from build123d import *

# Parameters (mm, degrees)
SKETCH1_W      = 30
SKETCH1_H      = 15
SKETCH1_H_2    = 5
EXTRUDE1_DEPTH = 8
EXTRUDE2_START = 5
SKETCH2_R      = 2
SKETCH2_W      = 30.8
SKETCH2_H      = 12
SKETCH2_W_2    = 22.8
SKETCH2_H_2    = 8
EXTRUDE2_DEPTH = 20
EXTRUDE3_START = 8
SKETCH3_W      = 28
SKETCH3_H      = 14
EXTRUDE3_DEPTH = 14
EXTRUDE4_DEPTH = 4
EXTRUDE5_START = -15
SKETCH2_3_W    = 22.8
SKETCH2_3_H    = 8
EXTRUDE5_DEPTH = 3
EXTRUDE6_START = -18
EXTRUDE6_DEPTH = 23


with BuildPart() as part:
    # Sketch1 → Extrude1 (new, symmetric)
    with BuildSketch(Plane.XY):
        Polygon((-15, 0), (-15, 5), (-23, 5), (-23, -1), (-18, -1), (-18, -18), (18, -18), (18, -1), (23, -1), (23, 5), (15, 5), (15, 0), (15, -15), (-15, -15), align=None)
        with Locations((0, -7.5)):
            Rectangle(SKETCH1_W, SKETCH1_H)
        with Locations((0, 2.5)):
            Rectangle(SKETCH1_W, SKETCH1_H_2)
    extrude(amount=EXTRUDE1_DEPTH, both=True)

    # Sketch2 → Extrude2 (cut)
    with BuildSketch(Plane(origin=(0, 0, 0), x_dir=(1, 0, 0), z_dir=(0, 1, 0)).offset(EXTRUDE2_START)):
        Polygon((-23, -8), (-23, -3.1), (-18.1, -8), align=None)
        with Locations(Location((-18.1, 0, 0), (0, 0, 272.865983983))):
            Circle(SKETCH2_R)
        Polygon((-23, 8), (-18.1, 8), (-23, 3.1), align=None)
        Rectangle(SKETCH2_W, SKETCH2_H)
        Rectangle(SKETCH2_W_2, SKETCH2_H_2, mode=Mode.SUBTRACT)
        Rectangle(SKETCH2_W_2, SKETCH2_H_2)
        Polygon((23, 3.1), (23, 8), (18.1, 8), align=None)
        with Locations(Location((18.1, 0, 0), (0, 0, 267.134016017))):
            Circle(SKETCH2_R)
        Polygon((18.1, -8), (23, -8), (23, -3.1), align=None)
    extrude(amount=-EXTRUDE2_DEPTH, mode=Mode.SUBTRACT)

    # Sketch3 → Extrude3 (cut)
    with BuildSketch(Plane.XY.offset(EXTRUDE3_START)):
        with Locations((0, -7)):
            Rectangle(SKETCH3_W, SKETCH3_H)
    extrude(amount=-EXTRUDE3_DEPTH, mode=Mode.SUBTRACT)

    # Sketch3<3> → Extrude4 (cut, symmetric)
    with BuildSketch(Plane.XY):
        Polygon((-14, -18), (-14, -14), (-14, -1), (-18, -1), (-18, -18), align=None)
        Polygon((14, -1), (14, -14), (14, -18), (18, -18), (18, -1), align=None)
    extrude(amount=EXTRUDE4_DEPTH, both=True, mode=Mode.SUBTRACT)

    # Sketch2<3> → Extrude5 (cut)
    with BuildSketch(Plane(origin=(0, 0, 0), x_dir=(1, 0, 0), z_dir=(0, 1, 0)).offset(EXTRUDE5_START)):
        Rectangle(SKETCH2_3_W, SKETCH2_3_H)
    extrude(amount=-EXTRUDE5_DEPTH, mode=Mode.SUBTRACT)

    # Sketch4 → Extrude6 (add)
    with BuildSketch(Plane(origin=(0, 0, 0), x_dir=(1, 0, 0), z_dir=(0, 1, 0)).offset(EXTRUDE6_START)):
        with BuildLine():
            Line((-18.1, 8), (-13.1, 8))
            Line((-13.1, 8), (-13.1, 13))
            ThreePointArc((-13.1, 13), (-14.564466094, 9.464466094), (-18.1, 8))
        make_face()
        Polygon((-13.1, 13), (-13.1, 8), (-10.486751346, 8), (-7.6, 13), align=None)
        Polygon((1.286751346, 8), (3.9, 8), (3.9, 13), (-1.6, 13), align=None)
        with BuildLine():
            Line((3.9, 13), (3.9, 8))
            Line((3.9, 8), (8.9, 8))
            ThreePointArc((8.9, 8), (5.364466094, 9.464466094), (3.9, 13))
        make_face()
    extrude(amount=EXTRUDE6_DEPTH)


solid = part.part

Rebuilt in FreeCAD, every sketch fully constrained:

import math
import FreeCAD as App
import Part
import Sketcher

V = App.Vector
Q = App.Units.Quantity


def add_polygon(sketch, points):
    """Adds a closed chain of lines whose ends are joined by coincident constraints."""
    first, n = sketch.GeometryCount, len(points)
    for a, b in zip(points, points[1:] + points[:1]):
        sketch.addGeometry(Part.LineSegment(App.Vector(*a, 0), App.Vector(*b, 0)), False)
    for i in range(n):
        sketch.addConstraint(Sketcher.Constraint("Coincident", first + i, 2, first + (i + 1) % n, 1))

doc = App.newDocument("Part")
body = doc.addObject("PartDesign::Body", "Body")

# Sketch on XY plane
sketch1 = body.newObject("Sketcher::SketchObject", "Sketch")
sketch1.AttachmentSupport = (doc.getObject("XY_Plane"), [""])
sketch1.MapMode = "FlatFace"
add_polygon(sketch1, [(-23, 5), (-23, -1), (-18, -1), (-18, -18), (18, -18), (18, -1), (23, -1), (23, 5)])  # lines 0-7
sketch1.addConstraint(Sketcher.Constraint("Vertical", 0))
sketch1.addConstraint(Sketcher.Constraint("Horizontal", 1))
sketch1.addConstraint(Sketcher.Constraint("Vertical", 2))
sketch1.addConstraint(Sketcher.Constraint("Horizontal", 3))
sketch1.addConstraint(Sketcher.Constraint("Vertical", 4))
sketch1.addConstraint(Sketcher.Constraint("Horizontal", 5))
sketch1.addConstraint(Sketcher.Constraint("Vertical", 6))
sketch1.addConstraint(Sketcher.Constraint("Horizontal", 7))
sketch1.addConstraint(Sketcher.Constraint("Symmetric", 1, 2, 4, 2, -2))
sketch1.addConstraint(Sketcher.Constraint("Equal", 1, 5))
sketch1.addConstraint(Sketcher.Constraint("DistanceX", 1, 1, 1, 2, 5.0))
sketch1.addConstraint(Sketcher.Constraint("DistanceX", 3, 1, 3, 2, 36.0))
sketch1.addConstraint(Sketcher.Constraint("DistanceY", 0, 2, 0, 1, 6.0))
sketch1.addConstraint(Sketcher.Constraint("DistanceY", 2, 2, 2, 1, 17.0))
sketch1.addConstraint(Sketcher.Constraint("DistanceY", 0, 2, -1, 1, 1.0))
pad1 = body.newObject("PartDesign::Pad", "Pad")
pad1.Profile = sketch1
pad1.Length = 16
pad1.Midplane = True

# Sketch on XZ plane
sketch2 = body.newObject("Sketcher::SketchObject", "Sketch001")
sketch2.AttachmentSupport = (doc.getObject("XZ_Plane"), [""])
sketch2.MapMode = "FlatFace"
sketch2.AttachmentOffset = App.Placement(V(0, 0, -5), App.Rotation())
add_polygon(sketch2, [(-23, 3.1), (-23, 8), (-18.1, 8)])  # lines 0-2
sketch2.addGeometry(Part.Circle(V(-18.1, 0, 0), V(0, 0, 1), 2), False)  # 3
add_polygon(sketch2, [(-18.1, -8), (-23, -8), (-23, -3.1)])  # lines 4-6
add_polygon(sketch2, [(-15.4, -6), (-15.4, 6), (15.4, 6), (15.4, -6)])  # lines 7-10
add_polygon(sketch2, [(23, -3.1), (23, -8), (18.1, -8)])  # lines 11-13
sketch2.addGeometry(Part.Circle(V(18.1, 0, 0), V(0, 0, 1), 2), False)  # 14
add_polygon(sketch2, [(18.1, 8), (23, 8), (23, 3.1)])  # lines 15-17
sketch2.addConstraint(Sketcher.Constraint("Vertical", 0))
sketch2.addConstraint(Sketcher.Constraint("Horizontal", 1))
sketch2.addConstraint(Sketcher.Constraint("Horizontal", 4))
sketch2.addConstraint(Sketcher.Constraint("Vertical", 5))
sketch2.addConstraint(Sketcher.Constraint("Vertical", 7))
sketch2.addConstraint(Sketcher.Constraint("Horizontal", 8))
sketch2.addConstraint(Sketcher.Constraint("Vertical", 9))
sketch2.addConstraint(Sketcher.Constraint("Horizontal", 10))
sketch2.addConstraint(Sketcher.Constraint("Vertical", 11))
sketch2.addConstraint(Sketcher.Constraint("Horizontal", 12))
sketch2.addConstraint(Sketcher.Constraint("Horizontal", 15))
sketch2.addConstraint(Sketcher.Constraint("Vertical", 16))
sketch2.addConstraint(Sketcher.Constraint("Equal", 3, 14))
sketch2.addConstraint(Sketcher.Constraint("Symmetric", 3, 3, 14, 3, -1, 1))
sketch2.addConstraint(Sketcher.Constraint("Symmetric", 7, 2, 9, 2, -1, 1))
sketch2.addConstraint(Sketcher.Constraint("Symmetric", 0, 2, 11, 2, -1, 1))
sketch2.addConstraint(Sketcher.Constraint("Symmetric", 4, 2, 15, 2, -1, 1))
sketch2.addConstraint(Sketcher.Constraint("Symmetric", 4, 2, 11, 2, -2))
sketch2.addConstraint(Sketcher.Constraint("PointOnObject", 3, 3, -1))
sketch2.addConstraint(Sketcher.Constraint("Perpendicular", 2, 6))
sketch2.addConstraint(Sketcher.Constraint("Perpendicular", 6, 13))
sketch2.addConstraint(Sketcher.Constraint("Perpendicular", 13, 17))
sketch2.addConstraint(Sketcher.Constraint("Horizontal", 5, 2, 13, 2))
sketch2.addConstraint(Sketcher.Constraint("Horizontal", 2, 2, 16, 2))
sketch2.addConstraint(Sketcher.Constraint("Vertical", 3, 3, 1, 2))
sketch2.addConstraint(Sketcher.Constraint("Vertical", 1, 2, 6, 2))
sketch2.addConstraint(Sketcher.Constraint("Vertical", 14, 3, 12, 2))
sketch2.addConstraint(Sketcher.Constraint("Diameter", 3, 4.0))
sketch2.addConstraint(Sketcher.Constraint("DistanceY", 7, 1, 7, 2, 12.0))
sketch2.addConstraint(Sketcher.Constraint("DistanceX", 1, 1, 1, 2, 4.9))
sketch2.addConstraint(Sketcher.Constraint("DistanceX", 8, 1, 8, 2, 30.8))
sketch2.addConstraint(Sketcher.Constraint("DistanceX", 0, 2, -1, 1, 23.0))
sketch2.addConstraint(Sketcher.Constraint("DistanceY", -1, 1, 0, 2, 8.0))
pocket1 = body.newObject("PartDesign::Pocket", "Pocket")
pocket1.Profile = sketch2
pocket1.Length = 20
pocket1.Reversed = True

# Sketch on XY plane
sketch3 = body.newObject("Sketcher::SketchObject", "Sketch002")
sketch3.AttachmentSupport = (doc.getObject("XY_Plane"), [""])
sketch3.MapMode = "FlatFace"
sketch3.AttachmentOffset = App.Placement(V(0, 0, 8), App.Rotation())
add_polygon(sketch3, [(-14, 0), (-14, -14), (14, -14), (14, 0)])  # lines 0-3
sketch3.addConstraint(Sketcher.Constraint("Vertical", 0))
sketch3.addConstraint(Sketcher.Constraint("Horizontal", 1))
sketch3.addConstraint(Sketcher.Constraint("Vertical", 2))
sketch3.addConstraint(Sketcher.Constraint("Horizontal", 3))
sketch3.addConstraint(Sketcher.Constraint("Symmetric", 2, 2, 3, 2, -1, 1))
sketch3.addConstraint(Sketcher.Constraint("DistanceX", 1, 1, 1, 2, 28.0))
sketch3.addConstraint(Sketcher.Constraint("DistanceY", 0, 2, 0, 1, 14.0))
pocket2 = body.newObject("PartDesign::Pocket", "Pocket001")
pocket2.Profile = sketch3
pocket2.Length = 14

# Sketch on XY plane
sketch4 = body.newObject("Sketcher::SketchObject", "Sketch003")
sketch4.AttachmentSupport = (doc.getObject("XY_Plane"), [""])
sketch4.MapMode = "FlatFace"
add_polygon(sketch4, [(-14, -18), (-14, -1), (-18, -1), (-18, -18)])  # lines 0-3
add_polygon(sketch4, [(14, -1), (14, -18), (18, -18), (18, -1)])  # lines 4-7
sketch4.addConstraint(Sketcher.Constraint("Vertical", 0))
sketch4.addConstraint(Sketcher.Constraint("Horizontal", 1))
sketch4.addConstraint(Sketcher.Constraint("Vertical", 2))
sketch4.addConstraint(Sketcher.Constraint("Horizontal", 3))
sketch4.addConstraint(Sketcher.Constraint("Vertical", 4))
sketch4.addConstraint(Sketcher.Constraint("Horizontal", 5))
sketch4.addConstraint(Sketcher.Constraint("Vertical", 6))
sketch4.addConstraint(Sketcher.Constraint("Horizontal", 7))
sketch4.addConstraint(Sketcher.Constraint("Symmetric", 3, 2, 4, 2, -2))
sketch4.addConstraint(Sketcher.Constraint("Symmetric", 1, 2, 6, 2, -2))
sketch4.addConstraint(Sketcher.Constraint("DistanceX", 1, 2, 1, 1, 4.0))
sketch4.addConstraint(Sketcher.Constraint("DistanceY", 0, 1, 0, 2, 17.0))
sketch4.addConstraint(Sketcher.Constraint("DistanceX", 0, 2, -1, 1, 14.0))
sketch4.addConstraint(Sketcher.Constraint("DistanceY", 0, 2, -1, 1, 1.0))
pocket3 = body.newObject("PartDesign::Pocket", "Pocket002")
pocket3.Profile = sketch4
pocket3.Length = 8
pocket3.Midplane = True

# Sketch on XZ plane
sketch5 = body.newObject("Sketcher::SketchObject", "Sketch004")
sketch5.AttachmentSupport = (doc.getObject("XZ_Plane"), [""])
sketch5.MapMode = "FlatFace"
sketch5.AttachmentOffset = App.Placement(V(0, 0, 15), App.Rotation())
add_polygon(sketch5, [(-11, -4), (-11, 4), (11, 4), (11, -4)])  # lines 0-3
sketch5.addConstraint(Sketcher.Constraint("Vertical", 0))
sketch5.addConstraint(Sketcher.Constraint("Horizontal", 1))
sketch5.addConstraint(Sketcher.Constraint("Vertical", 2))
sketch5.addConstraint(Sketcher.Constraint("Horizontal", 3))
sketch5.addConstraint(Sketcher.Constraint("Symmetric", 0, 2, 2, 2, -1, 1))
sketch5.addConstraint(Sketcher.Constraint("DistanceY", 0, 1, 0, 2, 8.0))
sketch5.addConstraint(Sketcher.Constraint("DistanceX", 1, 1, 1, 2, 22.8))
pocket4 = body.newObject("PartDesign::Pocket", "Pocket003")
pocket4.Profile = sketch5
pocket4.Length = 3
pocket4.Reversed = True

# Sketch on XZ plane
sketch6 = body.newObject("Sketcher::SketchObject", "Sketch005")
sketch6.AttachmentSupport = (doc.getObject("XZ_Plane"), [""])
sketch6.MapMode = "FlatFace"
sketch6.AttachmentOffset = App.Placement(V(0, 0, 18), App.Rotation())
sketch6.addGeometry(Part.LineSegment(V(-18, -8, 0), V(-10, -8, 0)), False)
sketch6.addGeometry(Part.LineSegment(V(-10, -8, 0), V(-8, -13, 0)), False)
sketch6.addGeometry(Part.LineSegment(V(-8, -13, 0), V(-13, -13, 0)), False)
sketch6.addGeometry(Part.ArcOfCircle(Part.Circle(V(-18, -13, 0), V(0, 0, 1), 5), math.radians(0), math.radians(90)), False)
sketch6.addGeometry(Part.LineSegment(V(1, -8, 0), V(9, -8, 0)), False)
sketch6.addGeometry(Part.ArcOfCircle(Part.Circle(V(9, -13, 0), V(0, 0, 1), 5), math.radians(90), math.radians(180)), False)
sketch6.addGeometry(Part.LineSegment(V(4, -13, 0), V(-2, -13, 0)), False)
sketch6.addGeometry(Part.LineSegment(V(-2, -13, 0), V(1, -8, 0)), False)
sketch6.addConstraint(Sketcher.Constraint("Coincident", 0, 2, 1, 1))
sketch6.addConstraint(Sketcher.Constraint("Coincident", 1, 2, 2, 1))
sketch6.addConstraint(Sketcher.Constraint("Coincident", 2, 2, 3, 1))
sketch6.addConstraint(Sketcher.Constraint("Tangent", 3, 2, 0, 1))
sketch6.addConstraint(Sketcher.Constraint("Tangent", 4, 2, 5, 1))
sketch6.addConstraint(Sketcher.Constraint("Coincident", 5, 2, 6, 1))
sketch6.addConstraint(Sketcher.Constraint("Coincident", 6, 2, 7, 1))
sketch6.addConstraint(Sketcher.Constraint("Coincident", 7, 2, 4, 1))
sketch6.addConstraint(Sketcher.Constraint("Horizontal", 0))
sketch6.addConstraint(Sketcher.Constraint("Horizontal", 2))
sketch6.addConstraint(Sketcher.Constraint("Horizontal", 4))
sketch6.addConstraint(Sketcher.Constraint("Horizontal", 6))
sketch6.addConstraint(Sketcher.Constraint("Equal", 3, 5))
sketch6.addConstraint(Sketcher.Constraint("Horizontal", 3, 3, 5, 3))
sketch6.addConstraint(Sketcher.Constraint("Horizontal", 5, 3, 1, 2))
sketch6.addConstraint(Sketcher.Constraint("Horizontal", 2, 2, 5, 2))
sketch6.addConstraint(Sketcher.Constraint("Equal", 0, 4))
sketch6.addConstraint(Sketcher.Constraint("Equal", 2, 6))
sketch6.addConstraint(Sketcher.Constraint("Radius", 3, 5.0))
sketch6.addConstraint(Sketcher.Constraint("Angle", 1, Q("-60 deg")))
sketch6.addConstraint(Sketcher.Constraint("DistanceX", 2, 2, 2, 1, 5.5))
sketch6.addConstraint(Sketcher.Constraint("DistanceY", 3, 3, -1, 1, 13.0))
sketch6.addConstraint(Sketcher.Constraint("DistanceX", 3, 3, 5, 3, 27.0))
sketch6.addConstraint(Sketcher.Constraint("DistanceX", 3, 3, -1, 1, 18.1))
pad2 = body.newObject("PartDesign::Pad", "Pad001")
pad2.Profile = sketch6
pad2.Length = 23
pad2.Reversed = True

doc.recompute()
